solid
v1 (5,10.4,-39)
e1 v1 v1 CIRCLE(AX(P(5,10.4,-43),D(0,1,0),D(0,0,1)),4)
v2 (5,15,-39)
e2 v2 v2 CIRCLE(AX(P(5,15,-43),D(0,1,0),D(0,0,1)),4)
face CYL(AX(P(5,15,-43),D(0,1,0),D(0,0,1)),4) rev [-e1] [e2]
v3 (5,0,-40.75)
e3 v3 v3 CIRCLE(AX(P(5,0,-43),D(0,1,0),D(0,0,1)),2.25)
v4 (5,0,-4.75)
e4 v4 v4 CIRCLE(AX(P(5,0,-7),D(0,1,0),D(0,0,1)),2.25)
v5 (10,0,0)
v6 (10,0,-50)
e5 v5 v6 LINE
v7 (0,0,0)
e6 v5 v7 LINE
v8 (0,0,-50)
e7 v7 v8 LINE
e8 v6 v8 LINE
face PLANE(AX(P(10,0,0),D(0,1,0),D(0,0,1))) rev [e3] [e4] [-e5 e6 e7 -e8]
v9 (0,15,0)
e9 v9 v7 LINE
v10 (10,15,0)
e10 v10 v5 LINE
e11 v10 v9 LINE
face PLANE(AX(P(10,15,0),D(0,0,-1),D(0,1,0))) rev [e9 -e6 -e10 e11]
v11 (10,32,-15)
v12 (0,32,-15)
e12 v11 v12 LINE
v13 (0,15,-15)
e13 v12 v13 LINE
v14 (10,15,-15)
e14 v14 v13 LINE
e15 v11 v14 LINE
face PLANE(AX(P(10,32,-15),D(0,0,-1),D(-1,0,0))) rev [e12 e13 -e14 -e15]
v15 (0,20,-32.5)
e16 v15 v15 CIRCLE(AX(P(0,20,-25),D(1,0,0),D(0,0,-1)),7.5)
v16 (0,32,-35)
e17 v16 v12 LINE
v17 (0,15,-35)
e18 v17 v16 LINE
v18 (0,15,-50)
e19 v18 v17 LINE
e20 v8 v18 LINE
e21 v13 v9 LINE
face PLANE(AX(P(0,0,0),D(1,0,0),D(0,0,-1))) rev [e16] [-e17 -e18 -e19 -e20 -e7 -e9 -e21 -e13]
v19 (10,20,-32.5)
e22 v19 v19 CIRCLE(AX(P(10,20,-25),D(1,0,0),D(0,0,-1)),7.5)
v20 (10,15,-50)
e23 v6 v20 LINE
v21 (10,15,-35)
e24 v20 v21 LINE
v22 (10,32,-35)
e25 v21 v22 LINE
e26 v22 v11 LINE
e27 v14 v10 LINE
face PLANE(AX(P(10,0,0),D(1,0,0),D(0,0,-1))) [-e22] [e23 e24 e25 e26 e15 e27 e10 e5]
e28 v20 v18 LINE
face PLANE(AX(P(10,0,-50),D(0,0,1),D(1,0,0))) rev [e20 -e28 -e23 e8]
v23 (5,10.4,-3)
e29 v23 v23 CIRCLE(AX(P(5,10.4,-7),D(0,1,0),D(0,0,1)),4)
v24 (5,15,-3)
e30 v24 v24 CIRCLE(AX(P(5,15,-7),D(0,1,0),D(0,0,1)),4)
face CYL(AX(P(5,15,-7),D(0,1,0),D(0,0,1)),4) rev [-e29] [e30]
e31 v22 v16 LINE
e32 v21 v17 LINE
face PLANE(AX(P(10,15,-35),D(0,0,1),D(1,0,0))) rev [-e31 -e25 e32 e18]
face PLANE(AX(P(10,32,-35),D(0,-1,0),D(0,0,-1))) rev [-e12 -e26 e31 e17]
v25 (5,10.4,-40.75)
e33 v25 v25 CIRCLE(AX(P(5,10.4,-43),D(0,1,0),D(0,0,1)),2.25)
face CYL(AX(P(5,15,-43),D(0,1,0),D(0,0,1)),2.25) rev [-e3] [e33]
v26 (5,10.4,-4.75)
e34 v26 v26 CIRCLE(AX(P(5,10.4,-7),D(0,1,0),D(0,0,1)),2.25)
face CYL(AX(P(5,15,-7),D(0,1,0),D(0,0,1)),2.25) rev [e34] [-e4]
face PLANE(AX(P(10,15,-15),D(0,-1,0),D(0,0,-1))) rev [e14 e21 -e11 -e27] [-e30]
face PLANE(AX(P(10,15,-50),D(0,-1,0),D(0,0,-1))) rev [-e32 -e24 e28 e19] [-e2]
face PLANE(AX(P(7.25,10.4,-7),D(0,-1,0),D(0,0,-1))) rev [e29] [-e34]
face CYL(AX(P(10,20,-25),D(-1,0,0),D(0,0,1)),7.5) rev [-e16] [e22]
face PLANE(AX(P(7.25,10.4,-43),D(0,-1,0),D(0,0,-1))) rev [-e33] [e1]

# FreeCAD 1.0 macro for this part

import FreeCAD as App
import Part
import Sketcher
from FreeCAD import Vector

doc = App.newDocument("Part")
body = doc.addObject("PartDesign::Body", "Body")

# Sketch on YZ plane
sketch1 = body.newObject("Sketcher::SketchObject", "Sketch")
sketch1.AttachmentSupport = (doc.getObject("YZ_Plane"), [""])
sketch1.MapMode = "FlatFace"
sketch1.addGeometry([
    Part.LineSegment(Vector(0, 0, 0), Vector(0, -50, 0)),  # 0
    Part.LineSegment(Vector(0, -50, 0), Vector(15, -50, 0)),  # 1
    Part.LineSegment(Vector(15, -50, 0), Vector(15, -35, 0)),  # 2
    Part.LineSegment(Vector(15, -35, 0), Vector(32, -35, 0)),  # 3
    Part.LineSegment(Vector(32, -35, 0), Vector(32, -15, 0)),  # 4
    Part.LineSegment(Vector(32, -15, 0), Vector(15, -15, 0)),  # 5
    Part.LineSegment(Vector(15, -15, 0), Vector(15, 0, 0)),  # 6
    Part.LineSegment(Vector(15, 0, 0), Vector(0, 0, 0)),  # 7
    Part.Circle(Vector(20, -25, 0), Vector(0, 0, 1), 7.5),  # 8
], False)
sketch1.addConstraint([
    Sketcher.Constraint("Coincident", 0, 2, 1, 1),
    Sketcher.Constraint("Coincident", 1, 2, 2, 1),
    Sketcher.Constraint("Coincident", 2, 2, 3, 1),
    Sketcher.Constraint("Coincident", 3, 2, 4, 1),
    Sketcher.Constraint("Coincident", 4, 2, 5, 1),
    Sketcher.Constraint("Coincident", 5, 2, 6, 1),
    Sketcher.Constraint("Coincident", 6, 2, 7, 1),
    Sketcher.Constraint("Coincident", 7, 2, 0, 1),
    Sketcher.Constraint("Vertical", 0),
    Sketcher.Constraint("Horizontal", 1),
    Sketcher.Constraint("Vertical", 2),
    Sketcher.Constraint("Horizontal", 3),
    Sketcher.Constraint("Vertical", 4),
    Sketcher.Constraint("Horizontal", 5),
    Sketcher.Constraint("Vertical", 6),
    Sketcher.Constraint("Horizontal", 7),
    Sketcher.Constraint("Coincident", 7, 2, -1, 1),
    Sketcher.Constraint("Vertical", 2, 2, 5, 2),
    Sketcher.Constraint("Equal", 7, 2),
    Sketcher.Constraint("Equal", 2, 6),
    Sketcher.Constraint("Diameter", 8, 15.0),
    Sketcher.Constraint("DistanceX", 1, 1, 1, 2, 15.0),
    Sketcher.Constraint("DistanceX", 3, 1, 3, 2, 17.0),
    Sketcher.Constraint("DistanceY", 0, 2, 0, 1, 50.0),
    Sketcher.Constraint("DistanceX", -1, 1, 8, 3, 20.0),
    Sketcher.Constraint("DistanceY", 8, 3, -1, 1, 25.0),
])
pad1 = body.newObject("PartDesign::Pad", "Pad")
pad1.Profile = sketch1
pad1.Length = 10

# Sketch on XZ plane
sketch2 = body.newObject("Sketcher::SketchObject", "Sketch001")
sketch2.AttachmentSupport = (doc.getObject("XZ_Plane"), [""])
sketch2.MapMode = "FlatFace"
sketch2.AttachmentOffset = App.Placement(Vector(0, 0, -15), App.Rotation())
sketch2.addGeometry([
    Part.Circle(Vector(5, -43, 0), Vector(0, 0, 1), 2.25),
    Part.Circle(Vector(5, -7, 0), Vector(0, 0, 1), 2.25),
], False)
sketch2.addConstraint([
    Sketcher.Constraint("Equal", 0, 1),
    Sketcher.Constraint("Vertical", 0, 3, 1, 3),
    Sketcher.Constraint("Diameter", 0, 4.5),
    Sketcher.Constraint("DistanceX", -1, 1, 0, 3, 5.0),
    Sketcher.Constraint("DistanceY", 0, 3, -1, 1, 43.0),
    Sketcher.Constraint("DistanceY", 1, 3, -1, 1, 7.0),
])
doc.recompute()
hole = body.newObject("PartDesign::Hole", "Hole")
hole.Profile = sketch2
hole.ThreadType = "None"
hole.Diameter = 4.5
hole.DepthType = "ThroughAll"
hole.HoleCutType = "Counterbore"
hole.HoleCutDiameter = 8
hole.HoleCutDepth = 4.6
hole.Reversed = True

doc.recompute()
